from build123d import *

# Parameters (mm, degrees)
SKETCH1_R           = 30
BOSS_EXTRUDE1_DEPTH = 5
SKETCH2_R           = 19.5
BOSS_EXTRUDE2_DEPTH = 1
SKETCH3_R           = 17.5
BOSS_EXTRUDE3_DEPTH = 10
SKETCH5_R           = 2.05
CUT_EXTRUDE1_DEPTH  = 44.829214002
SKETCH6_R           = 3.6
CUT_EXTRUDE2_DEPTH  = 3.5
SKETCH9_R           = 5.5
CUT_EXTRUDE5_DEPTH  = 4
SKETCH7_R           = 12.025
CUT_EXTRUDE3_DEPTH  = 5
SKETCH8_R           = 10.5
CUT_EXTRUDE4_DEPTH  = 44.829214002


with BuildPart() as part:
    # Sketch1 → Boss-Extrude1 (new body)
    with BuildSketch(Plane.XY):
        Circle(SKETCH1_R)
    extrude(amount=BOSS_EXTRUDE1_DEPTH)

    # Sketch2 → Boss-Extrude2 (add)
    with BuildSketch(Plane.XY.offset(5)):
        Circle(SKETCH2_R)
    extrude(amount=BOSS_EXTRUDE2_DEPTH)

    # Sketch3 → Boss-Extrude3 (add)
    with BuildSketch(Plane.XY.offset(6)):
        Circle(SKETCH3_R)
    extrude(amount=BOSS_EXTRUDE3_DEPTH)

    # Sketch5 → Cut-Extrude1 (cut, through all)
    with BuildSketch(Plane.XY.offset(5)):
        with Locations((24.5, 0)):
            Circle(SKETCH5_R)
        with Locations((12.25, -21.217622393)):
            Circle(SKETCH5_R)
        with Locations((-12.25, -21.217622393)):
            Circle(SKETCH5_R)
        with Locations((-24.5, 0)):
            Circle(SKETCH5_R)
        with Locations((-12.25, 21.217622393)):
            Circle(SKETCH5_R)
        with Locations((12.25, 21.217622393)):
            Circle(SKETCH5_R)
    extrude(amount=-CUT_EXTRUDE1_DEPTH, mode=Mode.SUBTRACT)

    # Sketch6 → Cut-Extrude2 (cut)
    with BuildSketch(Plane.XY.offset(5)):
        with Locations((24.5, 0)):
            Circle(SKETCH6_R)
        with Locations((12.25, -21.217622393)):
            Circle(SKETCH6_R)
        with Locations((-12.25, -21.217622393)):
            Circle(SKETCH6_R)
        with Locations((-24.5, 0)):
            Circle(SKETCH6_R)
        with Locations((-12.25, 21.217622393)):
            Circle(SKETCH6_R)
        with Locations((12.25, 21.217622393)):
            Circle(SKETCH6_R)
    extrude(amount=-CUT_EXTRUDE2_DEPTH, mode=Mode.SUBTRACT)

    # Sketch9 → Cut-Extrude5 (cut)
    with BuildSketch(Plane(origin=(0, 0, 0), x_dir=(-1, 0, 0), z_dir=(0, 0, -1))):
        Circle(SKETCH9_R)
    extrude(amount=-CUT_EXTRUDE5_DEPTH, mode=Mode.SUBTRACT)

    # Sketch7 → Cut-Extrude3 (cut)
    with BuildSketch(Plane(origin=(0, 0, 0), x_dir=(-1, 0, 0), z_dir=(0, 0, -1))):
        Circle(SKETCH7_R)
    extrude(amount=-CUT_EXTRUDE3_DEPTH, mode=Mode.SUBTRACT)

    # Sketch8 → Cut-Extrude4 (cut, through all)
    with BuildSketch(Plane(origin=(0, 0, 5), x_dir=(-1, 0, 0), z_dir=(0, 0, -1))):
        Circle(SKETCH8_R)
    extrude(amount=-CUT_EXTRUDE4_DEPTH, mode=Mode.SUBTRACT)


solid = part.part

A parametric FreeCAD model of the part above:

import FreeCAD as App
import Part
import Sketcher
from FreeCAD import Vector
Q = App.Units.Quantity

doc = App.newDocument("Part")
params = doc.addObject("Spreadsheet::Sheet", "Params")
for row, (alias, value) in enumerate([
    ("sketch1_diameter", "60 mm"),
    ("pad1_length", "5 mm"),
    ("sketch2_diameter", "39 mm"),
    ("pad2_length", "1 mm"),
    ("sketch3_diameter", "35 mm"),
    ("pad3_length", "10 mm"),
    ("sketch4_diameter", "4.1 mm"),
    ("sketch5_diameter", "7.2 mm"),
    ("pocket2_length", "3.5 mm"),
    ("sketch6_diameter", "11 mm"),
    ("pocket3_length", "4 mm"),
    ("sketch7_diameter", "24.05 mm"),
    ("pocket4_length", "5 mm"),
    ("sketch8_diameter", "21 mm"),
], start=1):
    params.set(f"A{row}", alias)
    params.set(f"B{row}", "=" + value)
    params.setAlias(f"B{row}", alias)

body = doc.addObject("PartDesign::Body", "Body")

# Sketch on XY plane
sketch1 = body.newObject("Sketcher::SketchObject", "Sketch")
sketch1.AttachmentSupport = (doc.getObject("XY_Plane"), [""])
sketch1.MapMode = "FlatFace"
sketch1.addGeometry(Part.Circle(Vector(0, 0, 0), Vector(0, 0, 1), 30), False)
sketch1.addConstraint([
    Sketcher.Constraint("Coincident", 0, 3, -1, 1),
    Sketcher.Constraint("Diameter", 0, Q("60 mm")),
])
sketch1.setExpression("Constraints[1]", "Params.sketch1_diameter")
pad1 = body.newObject("PartDesign::Pad", "Pad")
pad1.Profile = sketch1
pad1.setExpression("Length", "Params.pad1_length")

# Sketch on XY plane
sketch2 = body.newObject("Sketcher::SketchObject", "Sketch001")
sketch2.AttachmentSupport = (doc.getObject("XY_Plane"), [""])
sketch2.MapMode = "FlatFace"
sketch2.AttachmentOffset = App.Placement(Vector(0, 0, 5), App.Rotation())
sketch2.addGeometry(Part.Circle(Vector(0, 0, 0), Vector(0, 0, 1), 19.5), False)
sketch2.addConstraint([
    Sketcher.Constraint("Coincident", 0, 3, -1, 1),
    Sketcher.Constraint("Diameter", 0, Q("39 mm")),
])
sketch2.setExpression("Constraints[1]", "Params.sketch2_diameter")
pad2 = body.newObject("PartDesign::Pad", "Pad001")
pad2.Profile = sketch2
pad2.setExpression("Length", "Params.pad2_length")

# Sketch on XY plane
sketch3 = body.newObject("Sketcher::SketchObject", "Sketch002")
sketch3.AttachmentSupport = (doc.getObject("XY_Plane"), [""])
sketch3.MapMode = "FlatFace"
sketch3.AttachmentOffset = App.Placement(Vector(0, 0, 6), App.Rotation())
sketch3.addGeometry(Part.Circle(Vector(0, 0, 0), Vector(0, 0, 1), 17.5), False)
sketch3.addConstraint([
    Sketcher.Constraint("Coincident", 0, 3, -1, 1),
    Sketcher.Constraint("Diameter", 0, Q("35 mm")),
])
sketch3.setExpression("Constraints[1]", "Params.sketch3_diameter")
pad3 = body.newObject("PartDesign::Pad", "Pad002")
pad3.Profile = sketch3
pad3.setExpression("Length", "Params.pad3_length")

# Sketch on XY plane
sketch4 = body.newObject("Sketcher::SketchObject", "Sketch003")
sketch4.AttachmentSupport = (doc.getObject("XY_Plane"), [""])
sketch4.MapMode = "FlatFace"
sketch4.AttachmentOffset = App.Placement(Vector(0, 0, 5), App.Rotation())
sketch4.addGeometry([
    Part.Circle(Vector(24.5, 0, 0), Vector(0, 0, 1), 2.05),  # 0
    Part.Circle(Vector(12.25, -21.217622, 0), Vector(0, 0, 1), 2.05),  # 1
    Part.Circle(Vector(-12.25, -21.217622, 0), Vector(0, 0, 1), 2.05),  # 2
    Part.Circle(Vector(-24.5, 0, 0), Vector(0, 0, 1), 2.05),  # 3
    Part.Circle(Vector(-12.25, 21.217622, 0), Vector(0, 0, 1), 2.05),  # 4
    Part.Circle(Vector(12.25, 21.217622, 0), Vector(0, 0, 1), 2.05),  # 5
], False)
sketch4.addConstraint([
    Sketcher.Constraint("Equal", 0, 1),
    Sketcher.Constraint("Equal", 1, 2),
    Sketcher.Constraint("Equal", 2, 3),
    Sketcher.Constraint("Equal", 3, 4),
    Sketcher.Constraint("Equal", 4, 5),
    Sketcher.Constraint("Symmetric", 0, 3, 3, 3, -1, 1),
    Sketcher.Constraint("Symmetric", 1, 3, 4, 3, -1, 1),
    Sketcher.Constraint("Symmetric", 2, 3, 5, 3, -1, 1),
    Sketcher.Constraint("Symmetric", 1, 3, 2, 3, -2),
    Sketcher.Constraint("PointOnObject", 0, 3, -1),
    Sketcher.Constraint("Diameter", 0, Q("4.1 mm")),
    Sketcher.Constraint("DistanceX", 3, 3, 0, 3, Q("49 mm")),
    Sketcher.Constraint("DistanceX", 2, 3, 1, 3, Q("24.5 mm")),
    Sketcher.Constraint("DistanceY", 1, 3, -1, 1, Q("21.217622 mm")),
])
sketch4.setExpression("Constraints[10]", "Params.sketch4_diameter")
pocket1 = body.newObject("PartDesign::Pocket", "Pocket")
pocket1.Profile = sketch4
pocket1.Type = "ThroughAll"

# Sketch on XY plane
sketch5 = body.newObject("Sketcher::SketchObject", "Sketch004")
sketch5.AttachmentSupport = (doc.getObject("XY_Plane"), [""])
sketch5.MapMode = "FlatFace"
sketch5.AttachmentOffset = App.Placement(Vector(0, 0, 5), App.Rotation())
sketch5.addGeometry([
    Part.Circle(Vector(24.5, 0, 0), Vector(0, 0, 1), 3.6),  # 0
    Part.Circle(Vector(12.25, -21.217622, 0), Vector(0, 0, 1), 3.6),  # 1
    Part.Circle(Vector(-12.25, -21.217622, 0), Vector(0, 0, 1), 3.6),  # 2
    Part.Circle(Vector(-24.5, 0, 0), Vector(0, 0, 1), 3.6),  # 3
    Part.Circle(Vector(-12.25, 21.217622, 0), Vector(0, 0, 1), 3.6),  # 4
    Part.Circle(Vector(12.25, 21.217622, 0), Vector(0, 0, 1), 3.6),  # 5
], False)
sketch5.addConstraint([
    Sketcher.Constraint("Equal", 0, 1),
    Sketcher.Constraint("Equal", 1, 2),
    Sketcher.Constraint("Equal", 2, 3),
    Sketcher.Constraint("Equal", 3, 4),
    Sketcher.Constraint("Equal", 4, 5),
    Sketcher.Constraint("Symmetric", 0, 3, 3, 3, -1, 1),
    Sketcher.Constraint("Symmetric", 1, 3, 4, 3, -1, 1),
    Sketcher.Constraint("Symmetric", 2, 3, 5, 3, -1, 1),
    Sketcher.Constraint("Symmetric", 1, 3, 2, 3, -2),
    Sketcher.Constraint("PointOnObject", 0, 3, -1),
    Sketcher.Constraint("Diameter", 0, Q("7.2 mm")),
    Sketcher.Constraint("DistanceX", 3, 3, 0, 3, Q("49 mm")),
    Sketcher.Constraint("DistanceX", 2, 3, 1, 3, Q("24.5 mm")),
    Sketcher.Constraint("DistanceY", 1, 3, -1, 1, Q("21.217622 mm")),
])
sketch5.setExpression("Constraints[10]", "Params.sketch5_diameter")
pocket2 = body.newObject("PartDesign::Pocket", "Pocket001")
pocket2.Profile = sketch5
pocket2.setExpression("Length", "Params.pocket2_length")

# Sketch on XY plane
sketch6 = body.newObject("Sketcher::SketchObject", "Sketch005")
sketch6.AttachmentSupport = (doc.getObject("XY_Plane"), [""])
sketch6.MapMode = "FlatFace"
sketch6.addGeometry(Part.Circle(Vector(0, 0, 0), Vector(0, 0, 1), 5.5), False)
sketch6.addConstraint([
    Sketcher.Constraint("Coincident", 0, 3, -1, 1),
    Sketcher.Constraint("Diameter", 0, Q("11 mm")),
])
sketch6.setExpression("Constraints[1]", "Params.sketch6_diameter")
pocket3 = body.newObject("PartDesign::Pocket", "Pocket002")
pocket3.Profile = sketch6
pocket3.setExpression("Length", "Params.pocket3_length")
pocket3.Reversed = True

# Sketch on XY plane
sketch7 = body.newObject("Sketcher::SketchObject", "Sketch006")
sketch7.AttachmentSupport = (doc.getObject("XY_Plane"), [""])
sketch7.MapMode = "FlatFace"
sketch7.addGeometry(Part.Circle(Vector(0, 0, 0), Vector(0, 0, 1), 12.025), False)
sketch7.addConstraint([
    Sketcher.Constraint("Coincident", 0, 3, -1, 1),
    Sketcher.Constraint("Diameter", 0, Q("24.05 mm")),
])
sketch7.setExpression("Constraints[1]", "Params.sketch7_diameter")
pocket4 = body.newObject("PartDesign::Pocket", "Pocket003")
pocket4.Profile = sketch7
pocket4.setExpression("Length", "Params.pocket4_length")
pocket4.Reversed = True

# Sketch on XY plane
sketch8 = body.newObject("Sketcher::SketchObject", "Sketch007")
sketch8.AttachmentSupport = (doc.getObject("XY_Plane"), [""])
sketch8.MapMode = "FlatFace"
sketch8.AttachmentOffset = App.Placement(Vector(0, 0, 5), App.Rotation())
sketch8.addGeometry(Part.Circle(Vector(0, 0, 0), Vector(0, 0, 1), 10.5), False)
sketch8.addConstraint([
    Sketcher.Constraint("Coincident", 0, 3, -1, 1),
    Sketcher.Constraint("Diameter", 0, Q("21 mm")),
])
sketch8.setExpression("Constraints[1]", "Params.sketch8_diameter")
pocket5 = body.newObject("PartDesign::Pocket", "Pocket004")
pocket5.Profile = sketch8
pocket5.Type = "ThroughAll"
pocket5.Reversed = True

doc.recompute()
